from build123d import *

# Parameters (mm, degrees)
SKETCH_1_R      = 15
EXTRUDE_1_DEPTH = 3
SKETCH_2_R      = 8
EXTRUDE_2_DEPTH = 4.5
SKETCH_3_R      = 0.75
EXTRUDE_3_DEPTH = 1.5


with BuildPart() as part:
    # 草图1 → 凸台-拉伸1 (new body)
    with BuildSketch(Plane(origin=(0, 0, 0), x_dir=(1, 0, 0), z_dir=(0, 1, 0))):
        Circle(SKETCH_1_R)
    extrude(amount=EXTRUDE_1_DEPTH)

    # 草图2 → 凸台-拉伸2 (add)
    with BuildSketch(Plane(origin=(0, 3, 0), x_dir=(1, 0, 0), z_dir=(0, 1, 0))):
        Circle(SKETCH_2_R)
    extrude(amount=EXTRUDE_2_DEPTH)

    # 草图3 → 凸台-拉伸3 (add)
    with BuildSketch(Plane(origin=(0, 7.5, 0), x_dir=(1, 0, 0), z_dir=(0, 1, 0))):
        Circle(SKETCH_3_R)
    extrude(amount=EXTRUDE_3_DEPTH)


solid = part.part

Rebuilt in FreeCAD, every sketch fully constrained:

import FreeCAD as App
import Part
import Sketcher
from FreeCAD import Vector
Q = App.Units.Quantity

doc = App.newDocument("Part")
params = doc.addObject("Spreadsheet::Sheet", "Params")
for row, (alias, value) in enumerate([
    ("sketch1_diameter", "30 mm"),
    ("pad1_length", "3 mm"),
    ("sketch2_diameter", "16 mm"),
    ("pad2_length", "4.5 mm"),
    ("sketch3_diameter", "1.5 mm"),
    ("pad3_length", "1.5 mm"),
], start=1):
    params.set(f"A{row}", alias)
    params.set(f"B{row}", "=" + value)
    params.setAlias(f"B{row}", alias)

body = doc.addObject("PartDesign::Body", "Body")

sketch1 = body.newObject("Sketcher::SketchObject", "Sketch")
sketch1.AttachmentSupport = (doc.getObject("XZ_Plane"), [""])
sketch1.MapMode = "FlatFace"
sketch1.addGeometry(Part.Circle(Vector(0, 0, 0), Vector(0, 0, 1), 15), False)
sketch1.addConstraint(Sketcher.Constraint("Coincident", 0, 3, -1, 1))
sketch1.addConstraint(Sketcher.Constraint("Diameter", 0, Q("30 mm")))
sketch1.setExpression("Constraints[1]", "Params.sketch1_diameter")
pad1 = body.newObject("PartDesign::Pad", "Pad")
pad1.Profile = sketch1
pad1.setExpression("Length", "Params.pad1_length")
pad1.Reversed = True

sketch2 = body.newObject("Sketcher::SketchObject", "Sketch001")
sketch2.AttachmentSupport = (doc.getObject("XZ_Plane"), [""])
sketch2.MapMode = "FlatFace"
sketch2.AttachmentOffset = App.Placement(Vector(0, 0, -3), App.Rotation())
sketch2.addGeometry(Part.Circle(Vector(0, 0, 0), Vector(0, 0, 1), 8), False)
sketch2.addConstraint(Sketcher.Constraint("Coincident", 0, 3, -1, 1))
sketch2.addConstraint(Sketcher.Constraint("Diameter", 0, Q("16 mm")))
sketch2.setExpression("Constraints[1]", "Params.sketch2_diameter")
pad2 = body.newObject("PartDesign::Pad", "Pad001")
pad2.Profile = sketch2
pad2.setExpression("Length", "Params.pad2_length")
pad2.Reversed = True

sketch3 = body.newObject("Sketcher::SketchObject", "Sketch002")
sketch3.AttachmentSupport = (doc.getObject("XZ_Plane"), [""])
sketch3.MapMode = "FlatFace"
sketch3.AttachmentOffset = App.Placement(Vector(0, 0, -7.5), App.Rotation())
sketch3.addGeometry(Part.Circle(Vector(0, 0, 0), Vector(0, 0, 1), 0.75), False)
sketch3.addConstraint(Sketcher.Constraint("Coincident", 0, 3, -1, 1))
sketch3.addConstraint(Sketcher.Constraint("Diameter", 0, Q("1.5 mm")))
sketch3.setExpression("Constraints[1]", "Params.sketch3_diameter")
pad3 = body.newObject("PartDesign::Pad", "Pad002")
pad3.Profile = sketch3
pad3.setExpression("Length", "Params.pad3_length")
pad3.Reversed = True

doc.recompute()
